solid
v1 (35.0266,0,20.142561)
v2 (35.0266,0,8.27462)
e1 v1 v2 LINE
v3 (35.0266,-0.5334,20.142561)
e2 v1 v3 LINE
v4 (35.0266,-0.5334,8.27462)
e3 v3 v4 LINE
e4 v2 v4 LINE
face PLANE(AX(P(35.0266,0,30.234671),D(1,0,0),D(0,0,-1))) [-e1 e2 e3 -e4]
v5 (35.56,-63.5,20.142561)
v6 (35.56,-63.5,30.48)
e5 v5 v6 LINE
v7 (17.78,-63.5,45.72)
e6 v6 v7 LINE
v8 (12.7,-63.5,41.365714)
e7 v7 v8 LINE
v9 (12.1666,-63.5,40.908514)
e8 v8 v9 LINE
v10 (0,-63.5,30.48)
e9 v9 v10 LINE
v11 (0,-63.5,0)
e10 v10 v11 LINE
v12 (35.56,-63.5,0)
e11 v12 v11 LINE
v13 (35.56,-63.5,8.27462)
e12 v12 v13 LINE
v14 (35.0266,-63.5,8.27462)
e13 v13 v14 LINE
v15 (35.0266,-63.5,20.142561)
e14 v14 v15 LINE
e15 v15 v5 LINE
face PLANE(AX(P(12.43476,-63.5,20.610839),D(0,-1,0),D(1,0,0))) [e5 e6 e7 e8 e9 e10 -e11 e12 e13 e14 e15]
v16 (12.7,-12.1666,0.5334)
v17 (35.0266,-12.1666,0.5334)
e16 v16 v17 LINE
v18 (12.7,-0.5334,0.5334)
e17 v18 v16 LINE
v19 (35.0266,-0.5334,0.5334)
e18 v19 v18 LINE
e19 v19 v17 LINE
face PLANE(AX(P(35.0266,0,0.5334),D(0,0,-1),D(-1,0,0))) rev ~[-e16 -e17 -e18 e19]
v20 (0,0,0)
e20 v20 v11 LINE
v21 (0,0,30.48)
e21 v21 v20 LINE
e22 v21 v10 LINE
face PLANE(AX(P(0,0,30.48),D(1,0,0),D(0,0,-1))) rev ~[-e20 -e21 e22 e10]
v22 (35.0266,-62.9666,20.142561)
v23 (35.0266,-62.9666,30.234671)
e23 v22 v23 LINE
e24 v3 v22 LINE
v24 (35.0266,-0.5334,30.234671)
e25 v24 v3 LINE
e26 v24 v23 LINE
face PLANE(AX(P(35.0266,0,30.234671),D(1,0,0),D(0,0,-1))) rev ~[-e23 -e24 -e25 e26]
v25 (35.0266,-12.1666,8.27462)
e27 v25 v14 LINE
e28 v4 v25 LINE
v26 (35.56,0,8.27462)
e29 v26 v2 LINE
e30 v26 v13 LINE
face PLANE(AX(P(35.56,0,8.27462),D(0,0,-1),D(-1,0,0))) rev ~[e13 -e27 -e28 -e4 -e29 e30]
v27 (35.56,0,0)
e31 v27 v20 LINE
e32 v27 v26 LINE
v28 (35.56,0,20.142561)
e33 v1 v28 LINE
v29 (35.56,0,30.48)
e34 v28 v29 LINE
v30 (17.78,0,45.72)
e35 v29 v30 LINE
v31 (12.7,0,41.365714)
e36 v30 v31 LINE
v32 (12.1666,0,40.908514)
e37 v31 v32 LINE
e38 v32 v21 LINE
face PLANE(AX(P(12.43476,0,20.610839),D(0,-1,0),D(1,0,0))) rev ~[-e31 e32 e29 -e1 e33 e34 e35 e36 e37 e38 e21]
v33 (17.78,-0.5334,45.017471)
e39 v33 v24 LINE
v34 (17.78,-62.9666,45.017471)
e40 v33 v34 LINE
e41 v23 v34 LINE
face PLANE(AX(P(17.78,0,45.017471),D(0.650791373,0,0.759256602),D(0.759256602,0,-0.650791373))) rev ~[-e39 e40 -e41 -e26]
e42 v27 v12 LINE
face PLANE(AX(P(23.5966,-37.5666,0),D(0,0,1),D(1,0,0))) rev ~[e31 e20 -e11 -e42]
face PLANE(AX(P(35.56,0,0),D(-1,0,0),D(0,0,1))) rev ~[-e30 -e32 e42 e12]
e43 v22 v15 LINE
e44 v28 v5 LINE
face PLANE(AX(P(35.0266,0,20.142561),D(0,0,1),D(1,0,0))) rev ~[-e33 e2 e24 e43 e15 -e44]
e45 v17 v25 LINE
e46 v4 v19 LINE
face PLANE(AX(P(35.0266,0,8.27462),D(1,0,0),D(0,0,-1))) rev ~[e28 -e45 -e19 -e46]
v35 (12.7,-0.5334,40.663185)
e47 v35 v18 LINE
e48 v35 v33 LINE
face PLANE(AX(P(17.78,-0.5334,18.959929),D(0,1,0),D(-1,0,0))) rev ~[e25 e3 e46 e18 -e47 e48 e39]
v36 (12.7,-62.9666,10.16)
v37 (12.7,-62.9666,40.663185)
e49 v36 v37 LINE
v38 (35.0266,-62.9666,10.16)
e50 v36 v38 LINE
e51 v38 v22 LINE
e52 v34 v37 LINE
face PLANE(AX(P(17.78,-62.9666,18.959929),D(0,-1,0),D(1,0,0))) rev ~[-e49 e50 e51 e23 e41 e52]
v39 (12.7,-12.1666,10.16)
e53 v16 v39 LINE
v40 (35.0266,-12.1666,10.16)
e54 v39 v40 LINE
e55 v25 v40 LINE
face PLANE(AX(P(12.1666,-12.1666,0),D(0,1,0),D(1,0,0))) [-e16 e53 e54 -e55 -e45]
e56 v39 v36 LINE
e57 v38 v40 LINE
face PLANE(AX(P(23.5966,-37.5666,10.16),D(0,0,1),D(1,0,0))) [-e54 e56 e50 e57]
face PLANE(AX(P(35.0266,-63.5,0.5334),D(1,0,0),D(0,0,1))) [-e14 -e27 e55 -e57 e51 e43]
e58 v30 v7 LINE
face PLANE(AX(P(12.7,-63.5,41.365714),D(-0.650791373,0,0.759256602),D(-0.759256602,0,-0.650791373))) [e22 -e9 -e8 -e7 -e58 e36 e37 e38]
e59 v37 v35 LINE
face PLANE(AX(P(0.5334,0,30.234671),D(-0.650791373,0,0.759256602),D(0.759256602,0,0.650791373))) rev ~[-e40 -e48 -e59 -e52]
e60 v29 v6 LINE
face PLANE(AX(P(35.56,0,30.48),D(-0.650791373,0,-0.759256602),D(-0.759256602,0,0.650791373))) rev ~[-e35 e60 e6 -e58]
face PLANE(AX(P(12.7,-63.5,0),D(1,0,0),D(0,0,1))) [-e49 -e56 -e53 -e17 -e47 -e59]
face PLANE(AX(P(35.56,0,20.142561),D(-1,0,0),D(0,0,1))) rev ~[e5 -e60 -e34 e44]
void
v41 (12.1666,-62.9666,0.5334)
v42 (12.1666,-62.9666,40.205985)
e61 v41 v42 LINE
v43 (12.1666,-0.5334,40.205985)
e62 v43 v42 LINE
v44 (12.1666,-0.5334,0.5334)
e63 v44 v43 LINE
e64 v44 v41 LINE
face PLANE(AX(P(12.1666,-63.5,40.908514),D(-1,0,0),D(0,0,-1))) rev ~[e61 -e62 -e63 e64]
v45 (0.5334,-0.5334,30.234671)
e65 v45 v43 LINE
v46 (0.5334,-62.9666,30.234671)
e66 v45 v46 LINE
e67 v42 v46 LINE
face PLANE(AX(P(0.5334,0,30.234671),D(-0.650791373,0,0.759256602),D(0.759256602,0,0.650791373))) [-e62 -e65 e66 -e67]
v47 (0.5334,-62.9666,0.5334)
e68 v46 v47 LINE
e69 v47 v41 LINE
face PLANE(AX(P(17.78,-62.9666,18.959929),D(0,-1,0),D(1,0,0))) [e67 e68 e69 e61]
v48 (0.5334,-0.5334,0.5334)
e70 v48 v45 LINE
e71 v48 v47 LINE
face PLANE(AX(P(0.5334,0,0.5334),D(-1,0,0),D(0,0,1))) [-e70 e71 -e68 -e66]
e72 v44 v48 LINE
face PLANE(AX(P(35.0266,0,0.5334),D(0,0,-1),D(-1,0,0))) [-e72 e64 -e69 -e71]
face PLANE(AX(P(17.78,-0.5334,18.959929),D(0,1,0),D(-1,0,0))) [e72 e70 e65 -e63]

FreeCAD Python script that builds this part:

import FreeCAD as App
import Part
import Sketcher
from FreeCAD import Vector
Q = App.Units.Quantity

doc = App.newDocument("Part")
body = doc.addObject("PartDesign::Body", "Body")

# Sketch on XZ plane
sketch1 = body.newObject("Sketcher::SketchObject", "Sketch")
sketch1.AttachmentSupport = (doc.getObject("XZ_Plane"), [""])
sketch1.MapMode = "FlatFace"
sketch1.addGeometry(Part.LineSegment(Vector(0, 30.48, 0), Vector(0, 0, 0)), False)
sketch1.addGeometry(Part.LineSegment(Vector(0, 0, 0), Vector(35.56, 0, 0)), False)
sketch1.addGeometry(Part.LineSegment(Vector(35.56, 0, 0), Vector(35.56, 8.27462, 0)), False)
sketch1.addGeometry(Part.LineSegment(Vector(35.56, 8.27462, 0), Vector(35.0266, 8.27462, 0)), False)
sketch1.addGeometry(Part.LineSegment(Vector(35.0266, 8.27462, 0), Vector(35.0266, 0.5334, 0)), False)
sketch1.addGeometry(Part.LineSegment(Vector(35.0266, 0.5334, 0), Vector(0.5334, 0.5334, 0)), False)
sketch1.addGeometry(Part.LineSegment(Vector(0.5334, 0.5334, 0), Vector(0.5334, 30.234671, 0)), False)
sketch1.addGeometry(Part.LineSegment(Vector(0.5334, 30.234671, 0), Vector(17.78, 45.017471, 0)), False)
sketch1.addGeometry(Part.LineSegment(Vector(17.78, 45.017471, 0), Vector(35.0266, 30.234671, 0)), False)
sketch1.addGeometry(Part.LineSegment(Vector(35.0266, 30.234671, 0), Vector(35.0266, 20.142561, 0)), False)
sketch1.addGeometry(Part.LineSegment(Vector(35.0266, 20.142561, 0), Vector(35.56, 20.142561, 0)), False)
sketch1.addGeometry(Part.LineSegment(Vector(35.56, 20.142561, 0), Vector(35.56, 30.48, 0)), False)
sketch1.addGeometry(Part.LineSegment(Vector(35.56, 30.48, 0), Vector(17.78, 45.72, 0)), False)
sketch1.addGeometry(Part.LineSegment(Vector(17.78, 45.72, 0), Vector(0, 30.48, 0)), False)
sketch1.addConstraint(Sketcher.Constraint("Coincident", 0, 2, 1, 1))
sketch1.addConstraint(Sketcher.Constraint("Coincident", 1, 2, 2, 1))
sketch1.addConstraint(Sketcher.Constraint("Coincident", 2, 2, 3, 1))
sketch1.addConstraint(Sketcher.Constraint("Coincident", 3, 2, 4, 1))
sketch1.addConstraint(Sketcher.Constraint("Coincident", 4, 2, 5, 1))
sketch1.addConstraint(Sketcher.Constraint("Coincident", 5, 2, 6, 1))
sketch1.addConstraint(Sketcher.Constraint("Coincident", 6, 2, 7, 1))
sketch1.addConstraint(Sketcher.Constraint("Coincident", 7, 2, 8, 1))
sketch1.addConstraint(Sketcher.Constraint("Coincident", 8, 2, 9, 1))
sketch1.addConstraint(Sketcher.Constraint("Coincident", 9, 2, 10, 1))
sketch1.addConstraint(Sketcher.Constraint("Coincident", 10, 2, 11, 1))
sketch1.addConstraint(Sketcher.Constraint("Coincident", 11, 2, 12, 1))
sketch1.addConstraint(Sketcher.Constraint("Coincident", 12, 2, 13, 1))
sketch1.addConstraint(Sketcher.Constraint("Coincident", 13, 2, 0, 1))
sketch1.addConstraint(Sketcher.Constraint("Vertical", 0))
sketch1.addConstraint(Sketcher.Constraint("Horizontal", 1))
sketch1.addConstraint(Sketcher.Constraint("Vertical", 2))
sketch1.addConstraint(Sketcher.Constraint("Horizontal", 3))
sketch1.addConstraint(Sketcher.Constraint("Vertical", 4))
sketch1.addConstraint(Sketcher.Constraint("Horizontal", 5))
sketch1.addConstraint(Sketcher.Constraint("Vertical", 6))
sketch1.addConstraint(Sketcher.Constraint("Vertical", 9))
sketch1.addConstraint(Sketcher.Constraint("Horizontal", 10))
sketch1.addConstraint(Sketcher.Constraint("Vertical", 11))
sketch1.addConstraint(Sketcher.Constraint("Coincident", 0, 2, -1, 1))
sketch1.addConstraint(Sketcher.Constraint("Parallel", 8, 12))
sketch1.addConstraint(Sketcher.Constraint("Parallel", 7, 13))
sketch1.addConstraint(Sketcher.Constraint("Horizontal", 6, 2, 8, 2))
sketch1.addConstraint(Sketcher.Constraint("Horizontal", 11, 2, 13, 2))
sketch1.addConstraint(Sketcher.Constraint("Vertical", 4, 2, 8, 2))
sketch1.addConstraint(Sketcher.Constraint("Vertical", 2, 2, 10, 2))
sketch1.addConstraint(Sketcher.Constraint("Vertical", 7, 2, 12, 2))
sketch1.addConstraint(Sketcher.Constraint("Equal", 7, 8))
sketch1.addConstraint(Sketcher.Constraint("DistanceX", 1, 1, 1, 2, Q("1.4 in")))
sketch1.addConstraint(Sketcher.Constraint("DistanceY", 0, 2, 0, 1, Q("1.2 in")))
sketch1.addConstraint(Sketcher.Constraint("DistanceY", -1, 1, 12, 2, Q("1.8 in")))
sketch1.addConstraint(Sketcher.Constraint("DistanceX", 3, 2, 3, 1, Q("0.021 in")))
sketch1.addConstraint(Sketcher.Constraint("DistanceY", -1, 1, 4, 2, Q("0.021 in")))
sketch1.addConstraint(Sketcher.Constraint("DistanceY", 2, 1, 2, 2, Q("8.27462 mm")))
sketch1.addConstraint(Sketcher.Constraint("DistanceY", 6, 1, 6, 2, Q("29.701271 mm")))
sketch1.addConstraint(Sketcher.Constraint("DistanceY", 9, 2, 9, 1, Q("10.09211 mm")))
pad1 = body.newObject("PartDesign::Pad", "Pad")
pad1.Profile = sketch1
pad1.Length = Q("2.5 in")

# Sketch on XZ plane
sketch2 = body.newObject("Sketcher::SketchObject", "Sketch001")
sketch2.AttachmentSupport = (doc.getObject("XZ_Plane"), [""])
sketch2.MapMode = "FlatFace"
sketch2.AttachmentOffset = App.Placement(Vector(0, 0, 2.5 * 25.4), App.Rotation())
sketch2.addGeometry(Part.LineSegment(Vector(35.0266, 0.5334, 0), Vector(35.0266, 30.234671, 0)), False)
sketch2.addGeometry(Part.LineSegment(Vector(35.0266, 30.234671, 0), Vector(17.78, 45.017471, 0)), False)
sketch2.addGeometry(Part.LineSegment(Vector(17.78, 45.017471, 0), Vector(0.5334, 30.234671, 0)), False)
sketch2.addGeometry(Part.LineSegment(Vector(0.5334, 30.234671, 0), Vector(0.5334, 0.5334, 0)), False)
sketch2.addGeometry(Part.LineSegment(Vector(0.5334, 0.5334, 0), Vector(35.0266, 0.5334, 0)), False)
sketch2.addConstraint(Sketcher.Constraint("Coincident", 0, 2, 1, 1))
sketch2.addConstraint(Sketcher.Constraint("Coincident", 1, 2, 2, 1))
sketch2.addConstraint(Sketcher.Constraint("Coincident", 2, 2, 3, 1))
sketch2.addConstraint(Sketcher.Constraint("Coincident", 3, 2, 4, 1))
sketch2.addConstraint(Sketcher.Constraint("Coincident", 4, 2, 0, 1))
sketch2.addConstraint(Sketcher.Constraint("Vertical", 0))
sketch2.addConstraint(Sketcher.Constraint("Vertical", 3))
sketch2.addConstraint(Sketcher.Constraint("Horizontal", 4))
sketch2.addConstraint(Sketcher.Constraint("Horizontal", 0, 2, 2, 2))
sketch2.addConstraint(Sketcher.Constraint("Equal", 1, 2))
sketch2.addConstraint(Sketcher.Constraint("DistanceX", -1, 1, 1, 2, Q("0.7 in")))
sketch2.addConstraint(Sketcher.Constraint("DistanceX", 4, 1, 4, 2, Q("1.358 in")))
sketch2.addConstraint(Sketcher.Constraint("DistanceY", -1, 1, 3, 2, Q("0.021 in")))
sketch2.addConstraint(Sketcher.Constraint("DistanceY", 0, 2, 1, 2, Q("0.582 in")))
sketch2.addConstraint(Sketcher.Constraint("DistanceY", 0, 1, 0, 2, Q("29.701271 mm")))
pad2 = body.newObject("PartDesign::Pad", "Pad001")
pad2.Profile = sketch2
pad2.Length = Q("0.021 in")
pad2.Reversed = True

# Sketch on XZ plane
sketch3 = body.newObject("Sketcher::SketchObject", "Sketch002")
sketch3.AttachmentSupport = (doc.getObject("XZ_Plane"), [""])
sketch3.MapMode = "FlatFace"
sketch3.addGeometry(Part.LineSegment(Vector(35.0266, 30.234671, 0), Vector(35.0266, 0.5334, 0)), False)
sketch3.addGeometry(Part.LineSegment(Vector(35.0266, 0.5334, 0), Vector(0.5334, 0.5334, 0)), False)
sketch3.addGeometry(Part.LineSegment(Vector(0.5334, 0.5334, 0), Vector(0.5334, 30.234671, 0)), False)
sketch3.addGeometry(Part.LineSegment(Vector(0.5334, 30.234671, 0), Vector(17.78, 45.017471, 0)), False)
sketch3.addGeometry(Part.LineSegment(Vector(17.78, 45.017471, 0), Vector(35.0266, 30.234671, 0)), False)
sketch3.addConstraint(Sketcher.Constraint("Coincident", 0, 2, 1, 1))
sketch3.addConstraint(Sketcher.Constraint("Coincident", 1, 2, 2, 1))
sketch3.addConstraint(Sketcher.Constraint("Coincident", 2, 2, 3, 1))
sketch3.addConstraint(Sketcher.Constraint("Coincident", 3, 2, 4, 1))
sketch3.addConstraint(Sketcher.Constraint("Coincident", 4, 2, 0, 1))
sketch3.addConstraint(Sketcher.Constraint("Vertical", 0))
sketch3.addConstraint(Sketcher.Constraint("Horizontal", 1))
sketch3.addConstraint(Sketcher.Constraint("Vertical", 2))
sketch3.addConstraint(Sketcher.Constraint("Horizontal", 2, 2, 4, 2))
sketch3.addConstraint(Sketcher.Constraint("Equal", 3, 4))
sketch3.addConstraint(Sketcher.Constraint("DistanceX", -1, 1, 3, 2, Q("0.7 in")))
sketch3.addConstraint(Sketcher.Constraint("DistanceX", 1, 2, 1, 1, Q("1.358 in")))
sketch3.addConstraint(Sketcher.Constraint("DistanceY", -1, 1, 0, 2, Q("0.021 in")))
sketch3.addConstraint(Sketcher.Constraint("DistanceY", 2, 2, 3, 2, Q("0.582 in")))
sketch3.addConstraint(Sketcher.Constraint("DistanceY", 0, 2, 0, 1, Q("29.701271 mm")))
pad3 = body.newObject("PartDesign::Pad", "Pad002")
pad3.Profile = sketch3
pad3.Length = Q("0.021 in")

# Sketch on XZ plane
sketch4 = body.newObject("Sketcher::SketchObject", "Sketch003")
sketch4.AttachmentSupport = (doc.getObject("XZ_Plane"), [""])
sketch4.MapMode = "FlatFace"
sketch4.AttachmentOffset = App.Placement(Vector(0, 0, 2.5 * 25.4), App.Rotation())
sketch4.addGeometry(Part.LineSegment(Vector(12.1666, 40.908514, 0), Vector(12.1666, 0, 0)), False)
sketch4.addGeometry(Part.LineSegment(Vector(12.1666, 0, 0), Vector(12.7, 0, 0)), False)
sketch4.addGeometry(Part.LineSegment(Vector(12.7, 0, 0), Vector(12.7, 41.365714, 0)), False)
sketch4.addGeometry(Part.LineSegment(Vector(12.7, 41.365714, 0), Vector(12.1666, 40.908514, 0)), False)
sketch4.addConstraint(Sketcher.Constraint("Coincident", 0, 2, 1, 1))
sketch4.addConstraint(Sketcher.Constraint("Coincident", 1, 2, 2, 1))
sketch4.addConstraint(Sketcher.Constraint("Coincident", 2, 2, 3, 1))
sketch4.addConstraint(Sketcher.Constraint("Coincident", 3, 2, 0, 1))
sketch4.addConstraint(Sketcher.Constraint("Vertical", 0))
sketch4.addConstraint(Sketcher.Constraint("Horizontal", 1))
sketch4.addConstraint(Sketcher.Constraint("Vertical", 2))
sketch4.addConstraint(Sketcher.Constraint("PointOnObject", 0, 2, -1))
sketch4.addConstraint(Sketcher.Constraint("DistanceX", -1, 1, 1, 2, Q("0.5 in")))
sketch4.addConstraint(Sketcher.Constraint("DistanceX", 1, 1, 1, 2, Q("0.021 in")))
sketch4.addConstraint(Sketcher.Constraint("DistanceY", 3, 2, 2, 2, Q("0.018 in")))
sketch4.addConstraint(Sketcher.Constraint("DistanceY", 0, 2, 0, 1, Q("40.908514 mm")))
pad4 = body.newObject("PartDesign::Pad", "Pad003")
pad4.Profile = sketch4
pad4.Length = Q("2.5 in")
pad4.Reversed = True

# Sketch on XY plane
sketch5 = body.newObject("Sketcher::SketchObject", "Sketch004")
sketch5.AttachmentSupport = (doc.getObject("XY_Plane"), [""])
sketch5.MapMode = "FlatFace"
sketch5.addGeometry(Part.LineSegment(Vector(12.1666, -12.1666, 0), Vector(12.1666, -62.9666, 0)), False)
sketch5.addGeometry(Part.LineSegment(Vector(12.1666, -62.9666, 0), Vector(35.0266, -62.9666, 0)), False)
sketch5.addGeometry(Part.LineSegment(Vector(35.0266, -62.9666, 0), Vector(35.0266, -12.1666, 0)), False)
sketch5.addGeometry(Part.LineSegment(Vector(35.0266, -12.1666, 0), Vector(12.1666, -12.1666, 0)), False)
sketch5.addConstraint(Sketcher.Constraint("Coincident", 0, 2, 1, 1))
sketch5.addConstraint(Sketcher.Constraint("Coincident", 1, 2, 2, 1))
sketch5.addConstraint(Sketcher.Constraint("Coincident", 2, 2, 3, 1))
sketch5.addConstraint(Sketcher.Constraint("Coincident", 3, 2, 0, 1))
sketch5.addConstraint(Sketcher.Constraint("Vertical", 0))
sketch5.addConstraint(Sketcher.Constraint("Horizontal", 1))
sketch5.addConstraint(Sketcher.Constraint("Vertical", 2))
sketch5.addConstraint(Sketcher.Constraint("Horizontal", 3))
sketch5.addConstraint(Sketcher.Constraint("DistanceY", 0, 2, 0, 1, Q("2 in")))
sketch5.addConstraint(Sketcher.Constraint("DistanceX", 1, 1, 1, 2, Q("0.9 in")))
sketch5.addConstraint(Sketcher.Constraint("DistanceX", -1, 1, 0, 2, Q("0.479 in")))
sketch5.addConstraint(Sketcher.Constraint("DistanceY", 0, 2, -1, 1, Q("2.479 in")))
pad5 = body.newObject("PartDesign::Pad", "Pad004")
pad5.Profile = sketch5
pad5.Length = Q("0.4 in")

doc.recompute()
